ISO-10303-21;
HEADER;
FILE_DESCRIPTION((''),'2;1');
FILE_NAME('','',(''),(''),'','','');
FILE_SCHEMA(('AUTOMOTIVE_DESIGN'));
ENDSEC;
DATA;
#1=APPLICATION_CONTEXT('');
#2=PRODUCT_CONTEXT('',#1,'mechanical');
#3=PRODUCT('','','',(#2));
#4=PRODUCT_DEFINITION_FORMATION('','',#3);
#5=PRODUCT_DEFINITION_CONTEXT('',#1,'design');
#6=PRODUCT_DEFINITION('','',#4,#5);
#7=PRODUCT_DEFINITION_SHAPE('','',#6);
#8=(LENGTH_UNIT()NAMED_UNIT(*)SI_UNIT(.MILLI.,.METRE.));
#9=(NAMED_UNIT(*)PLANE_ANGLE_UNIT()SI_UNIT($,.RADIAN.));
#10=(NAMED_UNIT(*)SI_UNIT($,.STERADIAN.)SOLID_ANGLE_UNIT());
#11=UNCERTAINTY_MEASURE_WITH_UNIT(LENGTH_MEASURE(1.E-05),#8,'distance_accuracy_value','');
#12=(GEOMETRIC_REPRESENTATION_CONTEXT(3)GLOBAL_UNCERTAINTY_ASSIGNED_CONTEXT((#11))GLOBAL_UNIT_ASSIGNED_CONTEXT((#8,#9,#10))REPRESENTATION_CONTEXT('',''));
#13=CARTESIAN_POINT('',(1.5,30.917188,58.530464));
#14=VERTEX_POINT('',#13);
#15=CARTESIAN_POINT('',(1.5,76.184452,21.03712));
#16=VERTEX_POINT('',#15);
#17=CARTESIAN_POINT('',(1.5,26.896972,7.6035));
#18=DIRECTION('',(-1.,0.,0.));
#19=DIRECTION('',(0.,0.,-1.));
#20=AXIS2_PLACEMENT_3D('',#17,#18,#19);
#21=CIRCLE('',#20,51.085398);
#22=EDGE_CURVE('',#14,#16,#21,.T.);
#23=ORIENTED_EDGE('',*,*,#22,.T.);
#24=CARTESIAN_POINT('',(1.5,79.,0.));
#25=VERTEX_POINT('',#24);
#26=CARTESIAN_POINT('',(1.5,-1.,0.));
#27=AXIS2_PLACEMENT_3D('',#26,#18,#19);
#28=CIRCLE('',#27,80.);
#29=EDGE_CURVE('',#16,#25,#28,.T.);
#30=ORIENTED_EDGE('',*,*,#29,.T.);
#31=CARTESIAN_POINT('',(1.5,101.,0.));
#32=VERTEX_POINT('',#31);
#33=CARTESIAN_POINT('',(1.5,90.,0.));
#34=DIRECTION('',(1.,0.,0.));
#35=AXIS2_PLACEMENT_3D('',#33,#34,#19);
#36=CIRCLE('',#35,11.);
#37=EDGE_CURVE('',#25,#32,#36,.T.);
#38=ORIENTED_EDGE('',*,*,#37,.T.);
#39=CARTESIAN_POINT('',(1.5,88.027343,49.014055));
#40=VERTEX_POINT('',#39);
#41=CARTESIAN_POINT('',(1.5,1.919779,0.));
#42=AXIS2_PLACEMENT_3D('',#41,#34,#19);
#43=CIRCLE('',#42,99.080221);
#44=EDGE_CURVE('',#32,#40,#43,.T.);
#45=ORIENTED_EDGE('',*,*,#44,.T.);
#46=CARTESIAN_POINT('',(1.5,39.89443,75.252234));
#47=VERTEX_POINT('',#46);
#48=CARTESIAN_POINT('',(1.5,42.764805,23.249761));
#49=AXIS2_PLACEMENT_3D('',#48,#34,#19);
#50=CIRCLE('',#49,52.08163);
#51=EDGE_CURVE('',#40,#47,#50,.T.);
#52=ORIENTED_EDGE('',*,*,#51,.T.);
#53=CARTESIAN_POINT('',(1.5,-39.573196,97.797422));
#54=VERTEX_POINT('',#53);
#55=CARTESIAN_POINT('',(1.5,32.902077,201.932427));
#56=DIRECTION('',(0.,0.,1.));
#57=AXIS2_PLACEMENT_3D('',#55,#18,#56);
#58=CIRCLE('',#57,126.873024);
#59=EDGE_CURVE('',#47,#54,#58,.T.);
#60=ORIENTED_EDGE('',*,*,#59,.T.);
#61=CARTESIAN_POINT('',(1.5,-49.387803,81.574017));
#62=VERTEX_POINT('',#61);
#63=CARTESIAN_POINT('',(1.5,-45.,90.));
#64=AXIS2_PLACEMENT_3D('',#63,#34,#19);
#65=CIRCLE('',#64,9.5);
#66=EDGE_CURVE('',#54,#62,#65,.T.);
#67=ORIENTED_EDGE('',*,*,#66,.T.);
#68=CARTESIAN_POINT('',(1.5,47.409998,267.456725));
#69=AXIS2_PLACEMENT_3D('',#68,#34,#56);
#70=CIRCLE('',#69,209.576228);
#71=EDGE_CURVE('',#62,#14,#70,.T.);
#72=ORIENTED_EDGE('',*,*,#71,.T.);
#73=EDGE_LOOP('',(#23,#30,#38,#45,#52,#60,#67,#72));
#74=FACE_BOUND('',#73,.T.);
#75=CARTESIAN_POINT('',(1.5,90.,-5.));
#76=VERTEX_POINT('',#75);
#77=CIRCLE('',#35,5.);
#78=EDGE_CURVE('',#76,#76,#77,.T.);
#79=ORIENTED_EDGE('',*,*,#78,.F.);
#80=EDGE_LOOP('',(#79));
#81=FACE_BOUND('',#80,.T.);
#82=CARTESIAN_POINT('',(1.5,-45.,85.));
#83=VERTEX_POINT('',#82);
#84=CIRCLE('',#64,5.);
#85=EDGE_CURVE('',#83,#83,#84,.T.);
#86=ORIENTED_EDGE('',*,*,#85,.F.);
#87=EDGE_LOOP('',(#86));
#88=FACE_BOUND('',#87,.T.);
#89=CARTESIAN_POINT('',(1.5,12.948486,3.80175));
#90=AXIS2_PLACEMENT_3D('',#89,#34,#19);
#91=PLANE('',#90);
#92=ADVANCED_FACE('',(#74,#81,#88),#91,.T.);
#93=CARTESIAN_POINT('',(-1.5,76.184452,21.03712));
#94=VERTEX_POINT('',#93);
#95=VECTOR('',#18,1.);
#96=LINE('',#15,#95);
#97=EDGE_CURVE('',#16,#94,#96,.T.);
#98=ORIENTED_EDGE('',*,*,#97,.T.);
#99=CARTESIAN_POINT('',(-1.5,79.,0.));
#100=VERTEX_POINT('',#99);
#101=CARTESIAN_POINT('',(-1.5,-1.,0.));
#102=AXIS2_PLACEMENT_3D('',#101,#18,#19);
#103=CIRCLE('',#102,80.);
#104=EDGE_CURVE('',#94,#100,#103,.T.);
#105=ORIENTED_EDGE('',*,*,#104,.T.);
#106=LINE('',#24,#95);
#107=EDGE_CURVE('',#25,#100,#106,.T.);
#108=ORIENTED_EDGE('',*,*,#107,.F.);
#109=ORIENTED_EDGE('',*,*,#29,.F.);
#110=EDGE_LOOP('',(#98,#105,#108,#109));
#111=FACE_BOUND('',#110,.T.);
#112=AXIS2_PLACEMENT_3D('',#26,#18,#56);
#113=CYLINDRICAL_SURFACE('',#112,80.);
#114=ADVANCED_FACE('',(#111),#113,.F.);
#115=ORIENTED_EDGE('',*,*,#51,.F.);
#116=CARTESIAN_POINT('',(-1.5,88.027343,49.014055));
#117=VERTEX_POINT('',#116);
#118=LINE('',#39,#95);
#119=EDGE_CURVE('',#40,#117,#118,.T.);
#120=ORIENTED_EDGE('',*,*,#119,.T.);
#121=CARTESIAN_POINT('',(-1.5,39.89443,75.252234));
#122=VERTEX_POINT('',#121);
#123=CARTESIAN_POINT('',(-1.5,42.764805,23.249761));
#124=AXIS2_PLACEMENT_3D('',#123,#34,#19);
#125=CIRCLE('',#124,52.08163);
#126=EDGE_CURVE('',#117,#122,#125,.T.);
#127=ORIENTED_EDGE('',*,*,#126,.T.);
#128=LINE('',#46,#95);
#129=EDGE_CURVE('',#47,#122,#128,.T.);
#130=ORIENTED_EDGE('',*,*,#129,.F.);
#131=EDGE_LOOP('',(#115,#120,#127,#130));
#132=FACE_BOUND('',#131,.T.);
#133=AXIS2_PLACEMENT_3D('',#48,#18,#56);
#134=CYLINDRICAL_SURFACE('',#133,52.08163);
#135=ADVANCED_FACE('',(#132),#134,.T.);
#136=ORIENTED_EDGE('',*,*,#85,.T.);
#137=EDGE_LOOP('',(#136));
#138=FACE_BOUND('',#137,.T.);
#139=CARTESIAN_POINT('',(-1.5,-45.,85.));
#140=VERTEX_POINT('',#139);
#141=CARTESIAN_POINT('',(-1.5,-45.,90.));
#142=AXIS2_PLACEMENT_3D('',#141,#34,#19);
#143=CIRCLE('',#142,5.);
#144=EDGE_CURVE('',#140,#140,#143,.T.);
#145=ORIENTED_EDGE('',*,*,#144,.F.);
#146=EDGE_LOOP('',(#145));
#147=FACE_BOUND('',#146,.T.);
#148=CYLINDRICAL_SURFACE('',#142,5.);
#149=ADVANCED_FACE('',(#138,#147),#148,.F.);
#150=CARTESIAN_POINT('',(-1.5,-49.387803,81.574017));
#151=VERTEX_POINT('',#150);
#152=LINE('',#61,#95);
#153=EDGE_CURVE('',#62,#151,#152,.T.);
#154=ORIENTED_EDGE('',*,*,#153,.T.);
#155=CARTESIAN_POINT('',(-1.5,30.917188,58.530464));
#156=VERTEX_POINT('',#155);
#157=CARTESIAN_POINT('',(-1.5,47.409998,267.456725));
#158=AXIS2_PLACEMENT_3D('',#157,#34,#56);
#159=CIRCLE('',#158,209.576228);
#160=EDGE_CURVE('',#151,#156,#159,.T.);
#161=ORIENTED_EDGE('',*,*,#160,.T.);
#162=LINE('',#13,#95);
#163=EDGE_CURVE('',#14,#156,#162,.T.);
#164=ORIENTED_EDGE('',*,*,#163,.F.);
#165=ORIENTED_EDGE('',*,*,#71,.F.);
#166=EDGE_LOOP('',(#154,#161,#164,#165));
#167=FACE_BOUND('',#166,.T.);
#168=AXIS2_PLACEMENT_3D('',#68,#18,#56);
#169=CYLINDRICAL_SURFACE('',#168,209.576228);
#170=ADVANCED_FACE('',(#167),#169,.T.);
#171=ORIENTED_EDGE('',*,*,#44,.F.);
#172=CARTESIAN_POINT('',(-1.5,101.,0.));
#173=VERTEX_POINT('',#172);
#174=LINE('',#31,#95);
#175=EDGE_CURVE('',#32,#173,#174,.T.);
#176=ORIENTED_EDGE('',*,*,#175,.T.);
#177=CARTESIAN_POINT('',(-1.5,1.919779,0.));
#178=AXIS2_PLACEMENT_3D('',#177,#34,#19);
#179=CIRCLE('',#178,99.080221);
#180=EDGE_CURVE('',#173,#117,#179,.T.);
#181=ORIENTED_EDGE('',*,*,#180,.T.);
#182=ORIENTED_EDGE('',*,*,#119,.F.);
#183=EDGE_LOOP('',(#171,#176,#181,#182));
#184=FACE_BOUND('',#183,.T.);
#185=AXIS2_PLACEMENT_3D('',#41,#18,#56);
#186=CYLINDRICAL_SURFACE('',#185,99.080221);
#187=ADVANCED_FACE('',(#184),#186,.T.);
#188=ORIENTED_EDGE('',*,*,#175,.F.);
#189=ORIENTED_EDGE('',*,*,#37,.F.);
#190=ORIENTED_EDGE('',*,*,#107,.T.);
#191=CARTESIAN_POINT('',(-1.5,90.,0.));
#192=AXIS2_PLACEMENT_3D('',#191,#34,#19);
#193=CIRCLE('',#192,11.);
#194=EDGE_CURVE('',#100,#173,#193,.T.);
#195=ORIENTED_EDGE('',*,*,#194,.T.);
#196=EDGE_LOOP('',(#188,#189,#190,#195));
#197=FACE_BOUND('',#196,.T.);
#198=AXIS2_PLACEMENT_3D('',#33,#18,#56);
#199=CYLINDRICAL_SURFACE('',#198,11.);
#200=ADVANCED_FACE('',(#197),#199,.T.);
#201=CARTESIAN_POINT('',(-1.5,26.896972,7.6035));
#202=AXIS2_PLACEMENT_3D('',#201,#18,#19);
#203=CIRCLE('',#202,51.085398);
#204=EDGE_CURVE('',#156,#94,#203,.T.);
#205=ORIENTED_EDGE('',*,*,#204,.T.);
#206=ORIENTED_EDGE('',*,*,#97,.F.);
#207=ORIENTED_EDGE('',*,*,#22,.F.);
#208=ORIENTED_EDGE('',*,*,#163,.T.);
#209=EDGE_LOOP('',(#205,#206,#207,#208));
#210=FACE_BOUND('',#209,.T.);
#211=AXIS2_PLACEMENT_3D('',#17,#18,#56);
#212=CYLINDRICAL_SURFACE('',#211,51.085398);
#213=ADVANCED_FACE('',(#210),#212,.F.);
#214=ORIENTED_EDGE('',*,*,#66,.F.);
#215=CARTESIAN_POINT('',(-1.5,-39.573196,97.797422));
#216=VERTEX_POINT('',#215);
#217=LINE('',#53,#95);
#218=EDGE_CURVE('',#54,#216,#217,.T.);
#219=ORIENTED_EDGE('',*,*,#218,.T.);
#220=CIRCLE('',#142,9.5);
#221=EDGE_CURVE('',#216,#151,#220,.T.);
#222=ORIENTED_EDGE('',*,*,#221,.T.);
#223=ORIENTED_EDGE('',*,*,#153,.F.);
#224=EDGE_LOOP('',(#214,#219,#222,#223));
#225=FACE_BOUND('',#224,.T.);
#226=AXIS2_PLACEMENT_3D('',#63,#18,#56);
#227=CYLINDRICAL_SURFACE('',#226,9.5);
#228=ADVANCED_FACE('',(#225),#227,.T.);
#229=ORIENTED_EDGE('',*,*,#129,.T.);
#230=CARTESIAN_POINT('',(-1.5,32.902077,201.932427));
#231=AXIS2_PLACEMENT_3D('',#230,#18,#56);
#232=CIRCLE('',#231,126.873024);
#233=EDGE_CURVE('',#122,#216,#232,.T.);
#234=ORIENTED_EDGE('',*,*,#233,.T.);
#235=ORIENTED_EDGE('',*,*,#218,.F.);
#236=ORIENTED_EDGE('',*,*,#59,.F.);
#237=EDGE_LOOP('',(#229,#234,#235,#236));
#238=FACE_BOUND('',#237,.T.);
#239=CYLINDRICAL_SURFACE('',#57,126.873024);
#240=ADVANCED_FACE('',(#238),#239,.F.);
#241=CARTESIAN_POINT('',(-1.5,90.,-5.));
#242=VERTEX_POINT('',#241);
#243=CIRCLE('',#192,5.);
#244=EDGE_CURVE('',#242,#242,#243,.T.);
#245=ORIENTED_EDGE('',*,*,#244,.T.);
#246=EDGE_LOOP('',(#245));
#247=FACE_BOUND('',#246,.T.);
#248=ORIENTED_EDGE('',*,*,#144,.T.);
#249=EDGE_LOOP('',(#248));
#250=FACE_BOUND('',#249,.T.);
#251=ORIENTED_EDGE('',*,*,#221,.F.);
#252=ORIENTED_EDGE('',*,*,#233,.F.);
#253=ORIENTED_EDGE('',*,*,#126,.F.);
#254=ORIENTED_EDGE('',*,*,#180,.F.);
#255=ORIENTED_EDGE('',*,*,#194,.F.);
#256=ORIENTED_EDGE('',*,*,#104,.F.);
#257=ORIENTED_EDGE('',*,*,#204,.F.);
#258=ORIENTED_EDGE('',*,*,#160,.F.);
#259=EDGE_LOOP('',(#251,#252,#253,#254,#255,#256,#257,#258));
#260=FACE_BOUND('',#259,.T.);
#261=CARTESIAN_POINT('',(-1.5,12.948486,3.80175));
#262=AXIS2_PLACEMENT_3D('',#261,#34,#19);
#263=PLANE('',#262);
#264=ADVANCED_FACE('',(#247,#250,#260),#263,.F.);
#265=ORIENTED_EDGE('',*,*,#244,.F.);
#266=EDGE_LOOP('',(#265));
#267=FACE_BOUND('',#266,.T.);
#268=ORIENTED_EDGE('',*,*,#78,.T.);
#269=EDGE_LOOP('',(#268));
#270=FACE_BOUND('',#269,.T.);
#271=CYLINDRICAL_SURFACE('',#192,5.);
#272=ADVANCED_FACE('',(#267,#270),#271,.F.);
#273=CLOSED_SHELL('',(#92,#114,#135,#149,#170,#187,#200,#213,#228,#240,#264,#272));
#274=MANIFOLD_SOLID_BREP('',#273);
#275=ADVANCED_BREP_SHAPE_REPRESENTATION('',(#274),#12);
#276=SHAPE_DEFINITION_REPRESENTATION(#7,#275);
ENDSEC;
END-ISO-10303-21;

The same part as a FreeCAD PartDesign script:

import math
import FreeCAD as App
import Part
import Sketcher

V = App.Vector

doc = App.newDocument("Part")
body = doc.addObject("PartDesign::Body", "Body")

# Sketch on YZ plane
sketch1 = body.newObject("Sketcher::SketchObject", "Sketch")
sketch1.AttachmentSupport = (doc.getObject("YZ_Plane"), [""])
sketch1.MapMode = "FlatFace"
sketch1.addGeometry([
    Part.ArcOfCircle(Part.Circle(V(90, 0, 0), V(0, 0, 1), 11), math.radians(180), math.radians(360)),  # 0
    Part.ArcOfCircle(Part.Circle(V(1.919779, 0, 0), V(0, 0, 1), 99.080221), math.radians(0), math.radians(29.649351)),  # 1
    Part.ArcOfCircle(Part.Circle(V(42.764805, 23.249761, 0), V(0, 0, 1), 52.08163), math.radians(29.649351), math.radians(93.159343)),  # 2
    Part.ArcOfCircle(Part.Circle(V(32.902077, 201.932427, 0), V(0, 0, 1), 126.873024), math.radians(-124.836919), math.radians(-86.840657)),  # 3
    Part.ArcOfCircle(Part.Circle(V(-45, 90, 0), V(0, 0, 1), 9.5), math.radians(55.163081), math.radians(242.491904)),  # 4
    Part.ArcOfCircle(Part.Circle(V(47.409998, 267.456725, 0), V(0, 0, 1), 209.576228), math.radians(-117.508096), math.radians(-94.513615)),  # 5
    Part.ArcOfCircle(Part.Circle(V(26.896972, 7.6035, 0), V(0, 0, 1), 51.085398), math.radians(15.246009), math.radians(85.486385)),  # 6
    Part.ArcOfCircle(Part.Circle(V(-1, 0, 0), V(0, 0, 1), 80), math.radians(0), math.radians(15.246009)),  # 7
], False)
sketch1.addConstraint([
    Sketcher.Constraint("Tangent", 0, 2, 1, 1),
    Sketcher.Constraint("Tangent", 1, 2, 2, 1),
    Sketcher.Constraint("Tangent", 2, 2, 3, 2),
    Sketcher.Constraint("Tangent", 3, 1, 4, 1),
    Sketcher.Constraint("Tangent", 4, 2, 5, 1),
    Sketcher.Constraint("Tangent", 5, 2, 6, 2),
    Sketcher.Constraint("Tangent", 6, 1, 7, 2),
    Sketcher.Constraint("Tangent", 7, 1, 0, 1),
    Sketcher.Constraint("PointOnObject", 0, 3, -1),
    Sketcher.Constraint("PointOnObject", 1, 3, -1),
    Sketcher.Constraint("PointOnObject", 7, 3, -1),
    Sketcher.Constraint("Radius", 0, 11.0),
    Sketcher.Constraint("Radius", 7, 80.0),
    Sketcher.Constraint("Radius", 4, 9.5),
    Sketcher.Constraint("DistanceX", -1, 1, 0, 3, 90.0),
    Sketcher.Constraint("DistanceX", 4, 3, -1, 1, 45.0),
    Sketcher.Constraint("DistanceY", -1, 1, 4, 3, 90.0),
    Sketcher.Constraint("Radius", 1, 99.080221),
    Sketcher.Constraint("Radius", 2, 52.08163),
    Sketcher.Constraint("Radius", 3, 126.873024),
    Sketcher.Constraint("Radius", 5, 209.576228),
    Sketcher.Constraint("Radius", 6, 51.085398),
    Sketcher.Constraint("DistanceX", 3, 1, 2, 3, 82.338),
    Sketcher.Constraint("DistanceY", -1, 1, 6, 3, 7.6035),
])
pad1 = body.newObject("PartDesign::Pad", "Pad")
pad1.Profile = sketch1
pad1.Length = 3
pad1.Midplane = True

# Sketch on YZ plane
sketch2 = body.newObject("Sketcher::SketchObject", "Sketch001")
sketch2.AttachmentSupport = (doc.getObject("YZ_Plane"), [""])
sketch2.MapMode = "FlatFace"
sketch2.AttachmentOffset = App.Placement(V(0, 0, 1.5), App.Rotation())
sketch2.addGeometry([
    Part.Circle(V(90, 0, 0), V(0, 0, 1), 5),
    Part.Circle(V(-45, 90, 0), V(0, 0, 1), 5),
], False)
sketch2.addConstraint([
    Sketcher.Constraint("Equal", 0, 1),
    Sketcher.Constraint("PointOnObject", 0, 3, -1),
    Sketcher.Constraint("Diameter", 0, 10.0),
    Sketcher.Constraint("DistanceX", -1, 1, 0, 3, 90.0),
    Sketcher.Constraint("DistanceX", 1, 3, -1, 1, 45.0),
    Sketcher.Constraint("DistanceY", -1, 1, 1, 3, 90.0),
])
pocket1 = body.newObject("PartDesign::Pocket", "Pocket")
pocket1.Profile = sketch2
pocket1.Type = "ThroughAll"

doc.recompute()
